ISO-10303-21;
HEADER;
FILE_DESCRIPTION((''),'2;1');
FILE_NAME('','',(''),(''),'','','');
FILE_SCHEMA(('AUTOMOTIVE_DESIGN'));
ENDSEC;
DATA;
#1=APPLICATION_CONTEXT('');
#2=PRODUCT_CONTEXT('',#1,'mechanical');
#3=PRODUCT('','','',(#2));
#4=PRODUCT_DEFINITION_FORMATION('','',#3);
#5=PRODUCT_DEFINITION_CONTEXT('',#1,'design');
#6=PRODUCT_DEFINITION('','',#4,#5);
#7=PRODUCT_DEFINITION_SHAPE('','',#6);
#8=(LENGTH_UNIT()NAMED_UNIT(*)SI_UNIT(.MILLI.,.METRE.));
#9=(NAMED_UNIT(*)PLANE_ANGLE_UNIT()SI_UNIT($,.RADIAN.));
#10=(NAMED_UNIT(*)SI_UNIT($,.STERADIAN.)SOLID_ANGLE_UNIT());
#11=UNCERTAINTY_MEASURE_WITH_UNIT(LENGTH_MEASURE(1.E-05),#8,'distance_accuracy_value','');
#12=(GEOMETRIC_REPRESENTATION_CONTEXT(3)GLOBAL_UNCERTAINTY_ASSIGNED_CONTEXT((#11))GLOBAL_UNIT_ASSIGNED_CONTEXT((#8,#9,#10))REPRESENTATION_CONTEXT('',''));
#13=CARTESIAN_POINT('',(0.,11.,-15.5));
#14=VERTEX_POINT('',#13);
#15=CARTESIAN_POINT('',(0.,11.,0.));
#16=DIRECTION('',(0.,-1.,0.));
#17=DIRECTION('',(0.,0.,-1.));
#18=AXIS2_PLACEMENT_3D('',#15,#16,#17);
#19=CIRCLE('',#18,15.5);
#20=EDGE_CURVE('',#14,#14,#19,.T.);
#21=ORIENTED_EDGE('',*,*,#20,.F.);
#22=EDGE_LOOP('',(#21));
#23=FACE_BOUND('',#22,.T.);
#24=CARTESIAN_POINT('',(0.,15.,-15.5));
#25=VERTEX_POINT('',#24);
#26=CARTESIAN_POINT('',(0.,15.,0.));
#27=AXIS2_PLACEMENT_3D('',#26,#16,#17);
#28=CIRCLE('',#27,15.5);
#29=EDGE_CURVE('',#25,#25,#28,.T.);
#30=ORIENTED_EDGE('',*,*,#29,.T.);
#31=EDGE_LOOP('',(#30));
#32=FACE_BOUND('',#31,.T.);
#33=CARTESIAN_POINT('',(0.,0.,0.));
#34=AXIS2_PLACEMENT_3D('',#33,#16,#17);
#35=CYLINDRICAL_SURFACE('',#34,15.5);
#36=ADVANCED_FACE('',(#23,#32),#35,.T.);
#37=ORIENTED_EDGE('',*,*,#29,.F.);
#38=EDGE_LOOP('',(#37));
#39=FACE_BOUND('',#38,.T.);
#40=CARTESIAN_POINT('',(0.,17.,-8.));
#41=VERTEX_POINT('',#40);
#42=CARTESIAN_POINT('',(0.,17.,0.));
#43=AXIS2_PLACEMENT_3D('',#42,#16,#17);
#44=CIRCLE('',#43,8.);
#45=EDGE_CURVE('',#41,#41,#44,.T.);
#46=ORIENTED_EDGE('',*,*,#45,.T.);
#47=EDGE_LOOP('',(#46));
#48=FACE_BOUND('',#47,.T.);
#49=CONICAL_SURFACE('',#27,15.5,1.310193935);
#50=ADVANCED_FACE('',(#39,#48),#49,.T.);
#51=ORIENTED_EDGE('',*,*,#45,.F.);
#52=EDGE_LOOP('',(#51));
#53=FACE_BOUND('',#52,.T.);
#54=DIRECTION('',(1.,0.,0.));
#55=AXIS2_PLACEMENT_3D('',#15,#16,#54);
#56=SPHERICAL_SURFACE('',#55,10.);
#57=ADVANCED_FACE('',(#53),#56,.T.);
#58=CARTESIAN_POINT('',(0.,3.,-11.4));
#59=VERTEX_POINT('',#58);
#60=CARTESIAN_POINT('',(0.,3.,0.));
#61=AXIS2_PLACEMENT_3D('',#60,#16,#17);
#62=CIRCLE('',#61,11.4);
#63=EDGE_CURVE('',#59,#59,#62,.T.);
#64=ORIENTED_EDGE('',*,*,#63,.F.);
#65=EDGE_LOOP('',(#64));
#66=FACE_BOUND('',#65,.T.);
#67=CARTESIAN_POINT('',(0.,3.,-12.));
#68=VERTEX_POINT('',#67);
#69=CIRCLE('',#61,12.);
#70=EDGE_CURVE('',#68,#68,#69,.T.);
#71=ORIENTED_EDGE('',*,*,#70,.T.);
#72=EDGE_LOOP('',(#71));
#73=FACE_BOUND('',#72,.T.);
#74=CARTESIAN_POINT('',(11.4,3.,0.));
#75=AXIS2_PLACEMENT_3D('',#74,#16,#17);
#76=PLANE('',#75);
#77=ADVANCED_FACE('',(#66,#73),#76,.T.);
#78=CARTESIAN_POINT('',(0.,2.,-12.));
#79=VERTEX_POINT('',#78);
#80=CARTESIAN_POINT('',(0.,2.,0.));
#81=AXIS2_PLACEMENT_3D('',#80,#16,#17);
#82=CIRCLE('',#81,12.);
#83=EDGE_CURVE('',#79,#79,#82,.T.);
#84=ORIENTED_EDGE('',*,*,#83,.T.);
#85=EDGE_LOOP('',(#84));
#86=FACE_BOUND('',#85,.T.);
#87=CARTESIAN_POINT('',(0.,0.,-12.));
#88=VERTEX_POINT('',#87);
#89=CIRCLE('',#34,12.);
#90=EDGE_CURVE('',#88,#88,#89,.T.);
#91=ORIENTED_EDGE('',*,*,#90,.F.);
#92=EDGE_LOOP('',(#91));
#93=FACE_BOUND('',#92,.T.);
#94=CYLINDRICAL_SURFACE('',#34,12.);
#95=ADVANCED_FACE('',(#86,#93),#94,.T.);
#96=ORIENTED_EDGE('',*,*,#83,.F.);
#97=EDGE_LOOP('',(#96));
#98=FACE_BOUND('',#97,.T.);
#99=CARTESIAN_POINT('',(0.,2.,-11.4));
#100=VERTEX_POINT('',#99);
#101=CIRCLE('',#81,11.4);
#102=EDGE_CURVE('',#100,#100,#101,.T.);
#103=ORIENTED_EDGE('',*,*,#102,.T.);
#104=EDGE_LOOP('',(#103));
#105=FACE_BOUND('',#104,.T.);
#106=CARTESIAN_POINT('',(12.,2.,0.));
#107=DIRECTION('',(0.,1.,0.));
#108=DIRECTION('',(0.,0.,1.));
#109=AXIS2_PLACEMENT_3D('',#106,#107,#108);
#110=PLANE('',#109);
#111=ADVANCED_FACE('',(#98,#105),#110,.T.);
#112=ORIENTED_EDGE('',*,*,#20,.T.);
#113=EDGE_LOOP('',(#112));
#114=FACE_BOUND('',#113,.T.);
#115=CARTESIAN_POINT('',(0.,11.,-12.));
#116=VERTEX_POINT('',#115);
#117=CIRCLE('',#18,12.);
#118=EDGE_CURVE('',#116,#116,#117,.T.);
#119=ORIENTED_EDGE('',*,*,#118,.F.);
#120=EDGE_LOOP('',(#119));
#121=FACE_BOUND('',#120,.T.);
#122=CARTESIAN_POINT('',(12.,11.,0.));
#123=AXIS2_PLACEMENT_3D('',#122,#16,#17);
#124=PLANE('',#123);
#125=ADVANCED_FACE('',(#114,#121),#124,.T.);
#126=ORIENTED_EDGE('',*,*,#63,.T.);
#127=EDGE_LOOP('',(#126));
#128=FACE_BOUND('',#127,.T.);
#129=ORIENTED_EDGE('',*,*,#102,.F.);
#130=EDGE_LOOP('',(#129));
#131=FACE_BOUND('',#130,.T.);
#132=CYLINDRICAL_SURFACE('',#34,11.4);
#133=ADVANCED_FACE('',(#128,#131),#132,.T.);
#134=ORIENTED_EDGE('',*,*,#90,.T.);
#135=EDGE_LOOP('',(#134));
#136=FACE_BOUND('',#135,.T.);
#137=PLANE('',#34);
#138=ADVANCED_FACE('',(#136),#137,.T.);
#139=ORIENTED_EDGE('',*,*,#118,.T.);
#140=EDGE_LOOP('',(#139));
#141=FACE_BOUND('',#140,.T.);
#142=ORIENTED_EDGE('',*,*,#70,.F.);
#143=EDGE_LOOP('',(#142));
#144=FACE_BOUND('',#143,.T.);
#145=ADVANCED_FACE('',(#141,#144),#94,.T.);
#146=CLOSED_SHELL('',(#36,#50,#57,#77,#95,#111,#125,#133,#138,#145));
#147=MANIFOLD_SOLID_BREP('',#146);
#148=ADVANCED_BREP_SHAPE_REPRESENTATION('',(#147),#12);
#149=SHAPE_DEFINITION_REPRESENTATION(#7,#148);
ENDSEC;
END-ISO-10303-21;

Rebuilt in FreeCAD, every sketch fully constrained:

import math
import FreeCAD as App
import Part
import Sketcher

doc = App.newDocument("Part")
body = doc.addObject("PartDesign::Body", "Body")

sketch1 = body.newObject("Sketcher::SketchObject", "Sketch")
sketch1.AttachmentSupport = (doc.getObject("XY_Plane"), [""])
sketch1.MapMode = "FlatFace"
sketch1.addGeometry([
    Part.LineSegment(App.Vector(0, 0, 0), App.Vector(12, 0, 0)),
    Part.LineSegment(App.Vector(12, 0, 0), App.Vector(12, 2, 0)),
    Part.LineSegment(App.Vector(12, 2, 0), App.Vector(11.4, 2, 0)),
    Part.LineSegment(App.Vector(11.4, 2, 0), App.Vector(11.4, 3, 0)),
    Part.LineSegment(App.Vector(11.4, 3, 0), App.Vector(12, 3, 0)),
    Part.LineSegment(App.Vector(12, 3, 0), App.Vector(12, 11, 0)),
    Part.LineSegment(App.Vector(12, 11, 0), App.Vector(15.5, 11, 0)),
    Part.LineSegment(App.Vector(15.5, 11, 0), App.Vector(15.5, 15, 0)),
    Part.LineSegment(App.Vector(15.5, 15, 0), App.Vector(8, 17, 0)),
    Part.ArcOfCircle(Part.Circle(App.Vector(0, 11, 0), App.Vector(0, 0, 1), 10), math.radians(37), math.radians(90)),
    Part.LineSegment(App.Vector(0, 21, 0), App.Vector(0, 0, 0)),
], False)
sketch1.addConstraint([
    Sketcher.Constraint("Coincident", 0, 2, 1, 1),
    Sketcher.Constraint("Coincident", 1, 2, 2, 1),
    Sketcher.Constraint("Coincident", 2, 2, 3, 1),
    Sketcher.Constraint("Coincident", 3, 2, 4, 1),
    Sketcher.Constraint("Coincident", 4, 2, 5, 1),
    Sketcher.Constraint("Coincident", 5, 2, 6, 1),
    Sketcher.Constraint("Coincident", 6, 2, 7, 1),
    Sketcher.Constraint("Coincident", 7, 2, 8, 1),
    Sketcher.Constraint("Coincident", 8, 2, 9, 1),
    Sketcher.Constraint("Coincident", 9, 2, 10, 1),
    Sketcher.Constraint("Coincident", 10, 2, 0, 1),
    Sketcher.Constraint("Horizontal", 0),
    Sketcher.Constraint("Vertical", 1),
    Sketcher.Constraint("Horizontal", 2),
    Sketcher.Constraint("Vertical", 3),
    Sketcher.Constraint("Horizontal", 4),
    Sketcher.Constraint("Vertical", 5),
    Sketcher.Constraint("Horizontal", 6),
    Sketcher.Constraint("Vertical", 7),
    Sketcher.Constraint("Vertical", 10),
    Sketcher.Constraint("Coincident", 10, 2, -1, 1),
    Sketcher.Constraint("PointOnObject", 9, 3, -2),
    Sketcher.Constraint("Horizontal", 9, 3, 5, 2),
    Sketcher.Constraint("Vertical", 1, 2, 4, 2),
    Sketcher.Constraint("Radius", 9, 10.0),
    Sketcher.Constraint("DistanceX", 0, 1, 0, 2, 12.0),
    Sketcher.Constraint("DistanceY", 1, 1, 1, 2, 2.0),
    Sketcher.Constraint("DistanceY", 3, 1, 3, 2, 1.0),
    Sketcher.Constraint("DistanceY", 5, 1, 5, 2, 8.0),
    Sketcher.Constraint("DistanceY", 7, 1, 7, 2, 4.0),
    Sketcher.Constraint("DistanceX", 2, 2, 2, 1, 0.6),
    Sketcher.Constraint("DistanceX", 6, 1, 6, 2, 3.5),
    Sketcher.Constraint("DistanceX", -1, 1, 8, 2, 8.0),
])
revolution = body.newObject("PartDesign::Revolution", "Revolution")
revolution.Profile = sketch1
revolution.ReferenceAxis = (sketch1, ["V_Axis"])
revolution.Angle = 360

doc.recompute()
